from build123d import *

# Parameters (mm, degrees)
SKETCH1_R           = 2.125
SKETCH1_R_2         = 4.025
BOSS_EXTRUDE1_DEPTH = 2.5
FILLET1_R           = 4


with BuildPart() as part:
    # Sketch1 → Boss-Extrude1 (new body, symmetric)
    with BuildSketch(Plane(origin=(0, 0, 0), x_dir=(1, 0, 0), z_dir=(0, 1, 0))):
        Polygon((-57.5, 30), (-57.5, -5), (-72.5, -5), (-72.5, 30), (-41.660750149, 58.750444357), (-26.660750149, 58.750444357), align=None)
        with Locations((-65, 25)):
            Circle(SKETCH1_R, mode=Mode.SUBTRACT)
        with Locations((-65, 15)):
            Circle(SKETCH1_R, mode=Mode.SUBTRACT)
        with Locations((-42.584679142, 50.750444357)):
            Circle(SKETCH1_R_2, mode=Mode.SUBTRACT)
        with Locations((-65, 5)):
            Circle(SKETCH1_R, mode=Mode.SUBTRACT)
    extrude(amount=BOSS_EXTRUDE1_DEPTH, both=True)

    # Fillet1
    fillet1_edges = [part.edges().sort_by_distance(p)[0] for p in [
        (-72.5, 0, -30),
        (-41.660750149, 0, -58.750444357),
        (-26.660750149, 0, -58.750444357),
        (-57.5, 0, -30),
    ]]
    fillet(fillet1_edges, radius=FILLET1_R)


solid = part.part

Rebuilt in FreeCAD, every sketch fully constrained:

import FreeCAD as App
import Part
import Sketcher


def edges_at(feature, points):
    """Names of the edges that pass closest to the given points."""
    edges = feature.Shape.Edges
    near = lambda p: min(range(len(edges)), key=lambda i: edges[i].distToShape(Part.Vertex(*p))[0])
    return sorted({f"Edge{near(p) + 1}" for p in points})


def add_polygon(sketch, points):
    """Adds a closed chain of lines whose ends are joined by coincident constraints."""
    first, n = sketch.GeometryCount, len(points)
    for a, b in zip(points, points[1:] + points[:1]):
        sketch.addGeometry(Part.LineSegment(App.Vector(*a, 0), App.Vector(*b, 0)), False)
    for i in range(n):
        sketch.addConstraint(Sketcher.Constraint("Coincident", first + i, 2, first + (i + 1) % n, 1))

doc = App.newDocument("Part")
body = doc.addObject("PartDesign::Body", "Body")

sketch1 = body.newObject("Sketcher::SketchObject", "Sketch")
sketch1.AttachmentSupport = (doc.getObject("XZ_Plane"), [""])
sketch1.MapMode = "FlatFace"
add_polygon(sketch1, [(-57.5, 5), (-57.5, -30), (-26.66075, -58.750444), (-41.66075, -58.750444), (-72.5, -30), (-72.5, 5)])
sketch1.addGeometry(Part.Circle(App.Vector(-65, -5, 0), App.Vector(0, 0, 1), 2.125), False)
sketch1.addGeometry(Part.Circle(App.Vector(-65, -15, 0), App.Vector(0, 0, 1), 2.125), False)
sketch1.addGeometry(Part.Circle(App.Vector(-65, -25, 0), App.Vector(0, 0, 1), 2.125), False)
sketch1.addGeometry(Part.Circle(App.Vector(-42.584679, -50.750444, 0), App.Vector(0, 0, 1), 4.025), False)
sketch1.addConstraint([
    Sketcher.Constraint("Vertical", 0),
    Sketcher.Constraint("Horizontal", 2),
    Sketcher.Constraint("Vertical", 4),
    Sketcher.Constraint("Horizontal", 5),
    Sketcher.Constraint("Equal", 6, 7),
    Sketcher.Constraint("Equal", 7, 8),
    Sketcher.Constraint("Parallel", 1, 3),
    Sketcher.Constraint("Horizontal", 0, 2, 3, 2),
    Sketcher.Constraint("Vertical", 6, 3, 7, 3),
    Sketcher.Constraint("Vertical", 7, 3, 8, 3),
    Sketcher.Constraint("Diameter", 6, 4.25),
    Sketcher.Constraint("Diameter", 9, 8.05),
    Sketcher.Constraint("DistanceX", 2, 2, 2, 1, 15.0),
    Sketcher.Constraint("DistanceY", 0, 2, 0, 1, 35.0),
    Sketcher.Constraint("DistanceX", 6, 3, -1, 1, 65.0),
    Sketcher.Constraint("DistanceY", 6, 3, -1, 1, 5.0),
    Sketcher.Constraint("DistanceY", 7, 3, -1, 1, 15.0),
    Sketcher.Constraint("DistanceY", 8, 3, -1, 1, 25.0),
    Sketcher.Constraint("DistanceY", 0, 2, -1, 1, 30.0),
    Sketcher.Constraint("DistanceY", 1, 2, 9, 3, 8.0),
    Sketcher.Constraint("DistanceX", 0, 2, -1, 1, 57.5),
    Sketcher.Constraint("DistanceX", 9, 3, -1, 1, 42.584679),
    Sketcher.Constraint("DistanceX", 1, 2, -1, 1, 26.66075),
    Sketcher.Constraint("Distance", 1, 42.162156),
])
pad1 = body.newObject("PartDesign::Pad", "Pad")
pad1.Profile = sketch1
pad1.Length = 5
pad1.Midplane = True
doc.recompute()

fillet = body.newObject("PartDesign::Fillet", "Fillet")
fillet.Base = (pad1, edges_at(pad1, [
    (-72.5, 0, -30),
    (-41.661, 0, -58.75),
    (-26.661, 0, -58.75),
    (-57.5, 0, -30),
]))
fillet.Radius = 4

doc.recompute()
